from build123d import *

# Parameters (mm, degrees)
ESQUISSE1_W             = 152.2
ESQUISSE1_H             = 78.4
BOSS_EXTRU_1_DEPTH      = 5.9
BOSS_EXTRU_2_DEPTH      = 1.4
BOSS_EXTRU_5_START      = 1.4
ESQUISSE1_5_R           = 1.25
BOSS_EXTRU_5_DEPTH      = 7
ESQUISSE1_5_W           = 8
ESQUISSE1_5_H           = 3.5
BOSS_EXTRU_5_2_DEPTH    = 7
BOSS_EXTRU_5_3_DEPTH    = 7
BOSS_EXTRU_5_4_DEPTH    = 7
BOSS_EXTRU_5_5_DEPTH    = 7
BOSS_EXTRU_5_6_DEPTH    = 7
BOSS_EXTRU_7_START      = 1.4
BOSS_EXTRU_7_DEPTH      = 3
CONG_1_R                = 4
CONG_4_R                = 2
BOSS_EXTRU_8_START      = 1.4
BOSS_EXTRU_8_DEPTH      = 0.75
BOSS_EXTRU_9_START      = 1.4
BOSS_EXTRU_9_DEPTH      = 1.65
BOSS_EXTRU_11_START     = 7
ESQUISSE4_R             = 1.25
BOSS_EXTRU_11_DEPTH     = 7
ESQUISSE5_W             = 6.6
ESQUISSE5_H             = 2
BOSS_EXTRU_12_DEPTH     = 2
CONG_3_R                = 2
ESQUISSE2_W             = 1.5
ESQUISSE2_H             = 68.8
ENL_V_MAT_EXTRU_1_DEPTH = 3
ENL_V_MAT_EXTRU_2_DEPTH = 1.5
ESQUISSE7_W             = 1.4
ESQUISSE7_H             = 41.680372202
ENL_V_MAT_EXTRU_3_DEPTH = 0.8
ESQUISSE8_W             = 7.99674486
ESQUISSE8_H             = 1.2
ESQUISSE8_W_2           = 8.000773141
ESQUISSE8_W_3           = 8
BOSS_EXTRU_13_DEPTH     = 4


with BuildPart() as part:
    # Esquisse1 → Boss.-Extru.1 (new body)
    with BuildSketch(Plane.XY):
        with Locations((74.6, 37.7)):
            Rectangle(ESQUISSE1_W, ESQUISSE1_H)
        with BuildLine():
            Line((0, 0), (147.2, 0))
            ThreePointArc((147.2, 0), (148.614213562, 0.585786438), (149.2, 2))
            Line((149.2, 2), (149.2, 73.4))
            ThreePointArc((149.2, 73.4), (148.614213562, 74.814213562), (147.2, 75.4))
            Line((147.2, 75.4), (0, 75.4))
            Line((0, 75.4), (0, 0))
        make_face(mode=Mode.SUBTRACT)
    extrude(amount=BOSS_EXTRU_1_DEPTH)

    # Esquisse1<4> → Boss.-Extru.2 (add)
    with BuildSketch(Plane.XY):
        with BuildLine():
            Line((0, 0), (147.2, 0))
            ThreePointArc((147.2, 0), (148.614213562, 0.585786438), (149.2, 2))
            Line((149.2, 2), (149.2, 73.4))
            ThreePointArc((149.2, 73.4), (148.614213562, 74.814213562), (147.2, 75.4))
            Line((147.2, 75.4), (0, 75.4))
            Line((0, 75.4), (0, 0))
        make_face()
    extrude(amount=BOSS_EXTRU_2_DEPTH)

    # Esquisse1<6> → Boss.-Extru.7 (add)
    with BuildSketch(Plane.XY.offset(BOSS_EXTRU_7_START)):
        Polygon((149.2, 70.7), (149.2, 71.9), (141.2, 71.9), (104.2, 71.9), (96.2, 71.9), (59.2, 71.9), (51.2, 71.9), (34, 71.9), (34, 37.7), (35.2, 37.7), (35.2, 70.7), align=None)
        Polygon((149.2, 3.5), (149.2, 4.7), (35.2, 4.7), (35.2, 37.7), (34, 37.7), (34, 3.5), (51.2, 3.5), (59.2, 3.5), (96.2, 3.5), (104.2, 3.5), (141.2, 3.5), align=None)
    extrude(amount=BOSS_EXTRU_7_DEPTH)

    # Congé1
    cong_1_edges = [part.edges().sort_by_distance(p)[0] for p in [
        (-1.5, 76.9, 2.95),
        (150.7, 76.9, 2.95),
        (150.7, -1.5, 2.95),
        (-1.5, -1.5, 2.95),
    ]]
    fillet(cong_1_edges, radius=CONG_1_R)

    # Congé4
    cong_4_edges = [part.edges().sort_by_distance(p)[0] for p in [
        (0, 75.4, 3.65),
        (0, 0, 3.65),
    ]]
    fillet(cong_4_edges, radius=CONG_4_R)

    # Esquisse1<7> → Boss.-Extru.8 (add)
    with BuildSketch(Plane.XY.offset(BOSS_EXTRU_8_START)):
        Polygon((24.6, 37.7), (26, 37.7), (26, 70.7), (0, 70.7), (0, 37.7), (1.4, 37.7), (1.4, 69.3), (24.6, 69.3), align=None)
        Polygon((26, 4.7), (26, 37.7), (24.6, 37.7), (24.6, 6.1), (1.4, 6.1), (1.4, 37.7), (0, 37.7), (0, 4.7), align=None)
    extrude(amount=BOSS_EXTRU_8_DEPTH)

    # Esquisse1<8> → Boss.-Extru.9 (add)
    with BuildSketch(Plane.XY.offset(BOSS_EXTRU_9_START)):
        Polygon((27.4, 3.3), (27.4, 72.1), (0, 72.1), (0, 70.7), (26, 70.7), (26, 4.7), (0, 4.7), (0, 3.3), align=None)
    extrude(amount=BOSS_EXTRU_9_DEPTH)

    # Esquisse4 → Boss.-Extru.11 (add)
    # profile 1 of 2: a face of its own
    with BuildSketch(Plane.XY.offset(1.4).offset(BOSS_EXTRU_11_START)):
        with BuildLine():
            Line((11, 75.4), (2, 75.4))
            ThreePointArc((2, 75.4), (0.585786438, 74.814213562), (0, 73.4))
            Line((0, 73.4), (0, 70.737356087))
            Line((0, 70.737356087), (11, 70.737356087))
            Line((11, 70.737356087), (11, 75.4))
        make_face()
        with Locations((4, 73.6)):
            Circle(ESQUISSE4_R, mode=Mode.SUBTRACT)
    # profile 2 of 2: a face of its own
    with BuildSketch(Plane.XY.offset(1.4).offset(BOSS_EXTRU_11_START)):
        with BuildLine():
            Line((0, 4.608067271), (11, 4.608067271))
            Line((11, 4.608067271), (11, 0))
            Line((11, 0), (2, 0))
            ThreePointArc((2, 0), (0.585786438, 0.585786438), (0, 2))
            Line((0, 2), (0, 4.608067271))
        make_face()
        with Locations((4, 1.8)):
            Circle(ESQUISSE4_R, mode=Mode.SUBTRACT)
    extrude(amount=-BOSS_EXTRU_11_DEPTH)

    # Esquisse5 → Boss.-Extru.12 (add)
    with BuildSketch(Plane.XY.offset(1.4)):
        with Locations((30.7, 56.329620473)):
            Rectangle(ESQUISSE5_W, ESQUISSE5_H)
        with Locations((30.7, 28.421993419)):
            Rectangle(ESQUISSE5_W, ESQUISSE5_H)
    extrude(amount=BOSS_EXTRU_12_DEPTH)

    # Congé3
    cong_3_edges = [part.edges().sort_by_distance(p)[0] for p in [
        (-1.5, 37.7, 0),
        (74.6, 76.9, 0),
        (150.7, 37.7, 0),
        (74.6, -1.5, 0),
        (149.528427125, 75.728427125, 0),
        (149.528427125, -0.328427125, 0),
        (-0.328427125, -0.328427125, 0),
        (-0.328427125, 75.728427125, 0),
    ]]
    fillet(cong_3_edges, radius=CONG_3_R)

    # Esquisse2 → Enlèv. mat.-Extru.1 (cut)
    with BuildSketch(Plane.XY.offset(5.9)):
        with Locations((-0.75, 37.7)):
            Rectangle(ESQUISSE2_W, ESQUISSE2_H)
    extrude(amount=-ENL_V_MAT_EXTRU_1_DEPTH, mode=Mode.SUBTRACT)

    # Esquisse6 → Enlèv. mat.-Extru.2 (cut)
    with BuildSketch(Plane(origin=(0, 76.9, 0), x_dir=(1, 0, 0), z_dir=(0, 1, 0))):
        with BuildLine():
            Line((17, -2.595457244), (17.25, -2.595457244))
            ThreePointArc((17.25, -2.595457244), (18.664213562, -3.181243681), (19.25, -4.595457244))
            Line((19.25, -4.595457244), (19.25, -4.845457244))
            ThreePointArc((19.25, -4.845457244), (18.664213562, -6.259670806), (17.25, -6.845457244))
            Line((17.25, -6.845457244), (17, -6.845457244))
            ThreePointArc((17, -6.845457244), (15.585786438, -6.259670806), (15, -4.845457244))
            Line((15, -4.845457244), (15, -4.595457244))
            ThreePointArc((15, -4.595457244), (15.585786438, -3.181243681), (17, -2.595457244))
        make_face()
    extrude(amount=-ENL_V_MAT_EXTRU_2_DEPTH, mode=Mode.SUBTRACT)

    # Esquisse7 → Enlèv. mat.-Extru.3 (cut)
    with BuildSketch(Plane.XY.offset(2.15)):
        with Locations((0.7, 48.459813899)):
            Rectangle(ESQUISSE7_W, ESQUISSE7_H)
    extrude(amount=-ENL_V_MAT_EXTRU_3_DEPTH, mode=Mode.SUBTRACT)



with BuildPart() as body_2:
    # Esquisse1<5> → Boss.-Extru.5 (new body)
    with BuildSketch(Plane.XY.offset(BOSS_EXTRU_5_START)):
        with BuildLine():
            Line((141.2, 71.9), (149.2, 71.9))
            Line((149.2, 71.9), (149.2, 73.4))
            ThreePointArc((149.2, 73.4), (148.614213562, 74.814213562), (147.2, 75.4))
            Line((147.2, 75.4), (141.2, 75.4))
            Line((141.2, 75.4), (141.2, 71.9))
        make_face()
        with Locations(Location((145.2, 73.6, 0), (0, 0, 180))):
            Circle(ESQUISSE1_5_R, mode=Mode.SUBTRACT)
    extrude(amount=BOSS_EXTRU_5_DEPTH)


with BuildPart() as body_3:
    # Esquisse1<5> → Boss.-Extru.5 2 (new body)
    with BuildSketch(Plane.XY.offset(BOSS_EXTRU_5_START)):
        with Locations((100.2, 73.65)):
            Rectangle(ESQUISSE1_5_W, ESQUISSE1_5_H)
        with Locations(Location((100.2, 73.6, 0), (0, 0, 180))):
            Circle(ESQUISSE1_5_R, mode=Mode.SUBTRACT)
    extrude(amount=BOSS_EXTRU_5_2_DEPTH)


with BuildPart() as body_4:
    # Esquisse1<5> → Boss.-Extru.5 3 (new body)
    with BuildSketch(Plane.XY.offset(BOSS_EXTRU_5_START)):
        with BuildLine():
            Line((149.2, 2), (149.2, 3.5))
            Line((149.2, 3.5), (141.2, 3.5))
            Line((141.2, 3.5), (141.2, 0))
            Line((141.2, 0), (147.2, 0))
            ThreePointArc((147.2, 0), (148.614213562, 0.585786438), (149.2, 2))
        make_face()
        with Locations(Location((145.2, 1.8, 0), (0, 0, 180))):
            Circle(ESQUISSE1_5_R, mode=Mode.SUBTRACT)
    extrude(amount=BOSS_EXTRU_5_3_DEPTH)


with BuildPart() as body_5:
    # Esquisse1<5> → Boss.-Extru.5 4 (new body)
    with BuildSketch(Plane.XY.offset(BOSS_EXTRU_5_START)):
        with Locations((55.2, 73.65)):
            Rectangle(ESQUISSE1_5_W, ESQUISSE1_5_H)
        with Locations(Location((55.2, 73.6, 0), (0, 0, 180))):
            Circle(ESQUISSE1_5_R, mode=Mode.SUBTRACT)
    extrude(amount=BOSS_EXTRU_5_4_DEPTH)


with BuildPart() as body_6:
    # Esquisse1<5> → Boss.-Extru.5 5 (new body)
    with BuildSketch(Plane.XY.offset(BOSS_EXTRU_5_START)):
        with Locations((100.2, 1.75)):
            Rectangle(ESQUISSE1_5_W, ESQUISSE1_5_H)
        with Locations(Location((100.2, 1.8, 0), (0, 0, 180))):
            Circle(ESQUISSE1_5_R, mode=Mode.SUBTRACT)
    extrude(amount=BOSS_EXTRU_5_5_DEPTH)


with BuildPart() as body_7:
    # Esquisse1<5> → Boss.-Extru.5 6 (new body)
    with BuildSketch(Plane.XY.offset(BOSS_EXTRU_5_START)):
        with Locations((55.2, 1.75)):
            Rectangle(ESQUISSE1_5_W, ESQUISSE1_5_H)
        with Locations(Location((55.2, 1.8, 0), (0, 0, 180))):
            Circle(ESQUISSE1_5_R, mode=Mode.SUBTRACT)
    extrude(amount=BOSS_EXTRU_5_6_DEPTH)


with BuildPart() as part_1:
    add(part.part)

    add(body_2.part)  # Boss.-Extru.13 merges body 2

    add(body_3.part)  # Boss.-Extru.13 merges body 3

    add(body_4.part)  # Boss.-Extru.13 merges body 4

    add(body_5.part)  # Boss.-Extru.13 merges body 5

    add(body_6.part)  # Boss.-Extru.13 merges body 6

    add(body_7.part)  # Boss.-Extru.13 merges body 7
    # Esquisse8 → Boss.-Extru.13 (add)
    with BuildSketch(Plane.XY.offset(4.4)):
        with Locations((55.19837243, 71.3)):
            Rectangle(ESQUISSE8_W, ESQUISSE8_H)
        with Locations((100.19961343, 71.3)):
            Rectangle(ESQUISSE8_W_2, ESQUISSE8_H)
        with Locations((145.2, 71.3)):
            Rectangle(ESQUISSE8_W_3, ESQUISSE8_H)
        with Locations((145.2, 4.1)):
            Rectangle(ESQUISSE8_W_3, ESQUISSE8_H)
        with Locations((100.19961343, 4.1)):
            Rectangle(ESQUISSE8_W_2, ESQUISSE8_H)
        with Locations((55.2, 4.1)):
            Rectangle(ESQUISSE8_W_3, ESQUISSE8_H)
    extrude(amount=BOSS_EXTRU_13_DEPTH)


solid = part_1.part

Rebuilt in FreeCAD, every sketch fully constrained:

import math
import FreeCAD as App
import Part
import Sketcher
from FreeCAD import Vector


def edges_at(feature, points):
    """Names of the edges that pass closest to the given points."""
    edges = feature.Shape.Edges
    near = lambda p: min(range(len(edges)), key=lambda i: edges[i].distToShape(Part.Vertex(*p))[0])
    return sorted({f"Edge{near(p) + 1}" for p in points})


def add_polygon(sketch, points):
    """Adds a closed chain of lines whose ends are joined by coincident constraints."""
    first, n = sketch.GeometryCount, len(points)
    for a, b in zip(points, points[1:] + points[:1]):
        sketch.addGeometry(Part.LineSegment(App.Vector(*a, 0), App.Vector(*b, 0)), False)
    for i in range(n):
        sketch.addConstraint(Sketcher.Constraint("Coincident", first + i, 2, first + (i + 1) % n, 1))

doc = App.newDocument("Part")
body = doc.addObject("PartDesign::Body", "Body")

sketch1 = body.newObject("Sketcher::SketchObject", "Sketch")
sketch1.AttachmentSupport = (doc.getObject("XY_Plane"), [""])
sketch1.MapMode = "FlatFace"
add_polygon(sketch1, [(-1.5, 76.9), (-1.5, -1.5), (150.7, -1.5), (150.7, 76.9)])
sketch1.addGeometry(Part.LineSegment(Vector(147.2, 0, 0), Vector(0, 0, 0)), False)
sketch1.addGeometry(Part.LineSegment(Vector(0, 0, 0), Vector(0, 75.4, 0)), False)
sketch1.addGeometry(Part.LineSegment(Vector(0, 75.4, 0), Vector(147.2, 75.4, 0)), False)
sketch1.addGeometry(Part.ArcOfCircle(Part.Circle(Vector(147.2, 73.4, 0), Vector(0, 0, 1), 2), math.radians(0), math.radians(90)), False)
sketch1.addGeometry(Part.LineSegment(Vector(149.2, 73.4, 0), Vector(149.2, 2, 0)), False)
sketch1.addGeometry(Part.ArcOfCircle(Part.Circle(Vector(147.2, 2, 0), Vector(0, 0, 1), 2), math.radians(-90), math.radians(0)), False)
sketch1.addConstraint([
    Sketcher.Constraint("Coincident", 4, 2, 5, 1),
    Sketcher.Constraint("Coincident", 5, 2, 6, 1),
    Sketcher.Constraint("Tangent", 6, 2, 7, 2),
    Sketcher.Constraint("Tangent", 7, 1, 8, 1),
    Sketcher.Constraint("Tangent", 8, 2, 9, 2),
    Sketcher.Constraint("Tangent", 9, 1, 4, 1),
    Sketcher.Constraint("Vertical", 0),
    Sketcher.Constraint("Horizontal", 1),
    Sketcher.Constraint("Vertical", 2),
    Sketcher.Constraint("Horizontal", 3),
    Sketcher.Constraint("Horizontal", 4),
    Sketcher.Constraint("Vertical", 5),
    Sketcher.Constraint("Horizontal", 6),
    Sketcher.Constraint("Vertical", 8),
    Sketcher.Constraint("Coincident", 4, 2, -1, 1),
    Sketcher.Constraint("Equal", 7, 9),
    Sketcher.Constraint("Radius", 7, 2.0),
    Sketcher.Constraint("DistanceX", 1, 1, 1, 2, 152.2),
    Sketcher.Constraint("DistanceX", 4, 2, 4, 1, 147.2),
    Sketcher.Constraint("DistanceY", 0, 2, 0, 1, 78.4),
    Sketcher.Constraint("DistanceY", 5, 1, 5, 2, 75.4),
    Sketcher.Constraint("DistanceX", 0, 2, -1, 1, 1.5),
    Sketcher.Constraint("DistanceY", 0, 2, -1, 1, 1.5),
])
pad1 = body.newObject("PartDesign::Pad", "Pad")
pad1.Profile = sketch1
pad1.Length = 5.9

sketch2 = body.newObject("Sketcher::SketchObject", "Sketch001")
sketch2.AttachmentSupport = (doc.getObject("XY_Plane"), [""])
sketch2.MapMode = "FlatFace"
sketch2.addGeometry([
    Part.LineSegment(Vector(0, 0, 0), Vector(147.2, 0, 0)),
    Part.ArcOfCircle(Part.Circle(Vector(147.2, 2, 0), Vector(0, 0, 1), 2), math.radians(-90), math.radians(0)),
    Part.LineSegment(Vector(149.2, 2, 0), Vector(149.2, 73.4, 0)),
    Part.ArcOfCircle(Part.Circle(Vector(147.2, 73.4, 0), Vector(0, 0, 1), 2), math.radians(0), math.radians(90)),
    Part.LineSegment(Vector(147.2, 75.4, 0), Vector(0, 75.4, 0)),
    Part.LineSegment(Vector(0, 75.4, 0), Vector(0, 0, 0)),
], False)
sketch2.addConstraint([
    Sketcher.Constraint("Tangent", 0, 2, 1, 1),
    Sketcher.Constraint("Tangent", 1, 2, 2, 1),
    Sketcher.Constraint("Tangent", 2, 2, 3, 1),
    Sketcher.Constraint("Tangent", 3, 2, 4, 1),
    Sketcher.Constraint("Coincident", 4, 2, 5, 1),
    Sketcher.Constraint("Coincident", 5, 2, 0, 1),
    Sketcher.Constraint("Horizontal", 0),
    Sketcher.Constraint("Vertical", 2),
    Sketcher.Constraint("Horizontal", 4),
    Sketcher.Constraint("Vertical", 5),
    Sketcher.Constraint("Coincident", 5, 2, -1, 1),
    Sketcher.Constraint("Equal", 1, 3),
    Sketcher.Constraint("Radius", 1, 2.0),
    Sketcher.Constraint("DistanceX", 0, 1, 0, 2, 147.2),
    Sketcher.Constraint("DistanceY", 2, 1, 2, 2, 71.4),
])
pad2 = body.newObject("PartDesign::Pad", "Pad001")
pad2.Profile = sketch2
pad2.Length = 1.4

sketch3 = body.newObject("Sketcher::SketchObject", "Sketch002")
sketch3.AttachmentSupport = (doc.getObject("XY_Plane"), [""])
sketch3.MapMode = "FlatFace"
sketch3.AttachmentOffset = App.Placement(Vector(0, 0, 1.4), App.Rotation())
add_polygon(sketch3, [(149.2, 70.7), (149.2, 71.9), (34, 71.9), (34, 3.5), (149.2, 3.5), (149.2, 4.7), (35.2, 4.7), (35.2, 70.7)])
sketch3.addConstraint([
    Sketcher.Constraint("Vertical", 0),
    Sketcher.Constraint("Horizontal", 1),
    Sketcher.Constraint("Vertical", 2),
    Sketcher.Constraint("Horizontal", 3),
    Sketcher.Constraint("Vertical", 4),
    Sketcher.Constraint("Horizontal", 5),
    Sketcher.Constraint("Vertical", 6),
    Sketcher.Constraint("Horizontal", 7),
    Sketcher.Constraint("Vertical", 0, 2, 3, 2),
    Sketcher.Constraint("Equal", 0, 4),
    Sketcher.Constraint("DistanceX", 5, 2, 5, 1, 114.0),
    Sketcher.Constraint("DistanceY", 6, 1, 6, 2, 66.0),
    Sketcher.Constraint("DistanceX", 1, 2, 1, 1, 115.2),
    Sketcher.Constraint("DistanceY", 0, 1, 0, 2, 1.2),
    Sketcher.Constraint("DistanceX", -1, 1, 1, 2, 34.0),
    Sketcher.Constraint("DistanceY", -1, 1, 0, 2, 71.9),
])
pad3 = body.newObject("PartDesign::Pad", "Pad002")
pad3.Profile = sketch3
pad3.Length = 3
doc.recompute()

fillet = body.newObject("PartDesign::Fillet", "Fillet")
fillet.Base = (pad3, edges_at(pad3, [
    (-1.5, 76.9, 2.95),
    (150.7, 76.9, 2.95),
    (150.7, -1.5, 2.95),
    (-1.5, -1.5, 2.95),
]))
fillet.Radius = 4
doc.recompute()

fillet2 = body.newObject("PartDesign::Fillet", "Fillet001")
fillet2.Base = (fillet, edges_at(fillet, [(0, 75.4, 3.65), (0, 0, 3.65)]))
fillet2.Radius = 2

sketch4 = body.newObject("Sketcher::SketchObject", "Sketch003")
sketch4.AttachmentSupport = (doc.getObject("XY_Plane"), [""])
sketch4.MapMode = "FlatFace"
sketch4.AttachmentOffset = App.Placement(Vector(0, 0, 1.4), App.Rotation())
add_polygon(sketch4, [(26, 70.7), (0, 70.7), (0, 4.7), (26, 4.7)])
add_polygon(sketch4, [(1.4, 69.3), (24.6, 69.3), (24.6, 6.1), (1.4, 6.1)])
sketch4.addConstraint([
    Sketcher.Constraint("Horizontal", 0),
    Sketcher.Constraint("Vertical", 1),
    Sketcher.Constraint("Horizontal", 2),
    Sketcher.Constraint("Vertical", 3),
    Sketcher.Constraint("Horizontal", 4),
    Sketcher.Constraint("Vertical", 5),
    Sketcher.Constraint("Horizontal", 6),
    Sketcher.Constraint("Vertical", 7),
    Sketcher.Constraint("PointOnObject", 0, 2, -2),
    Sketcher.Constraint("DistanceX", 0, 2, 0, 1, 26.0),
    Sketcher.Constraint("DistanceY", 1, 2, 1, 1, 66.0),
    Sketcher.Constraint("DistanceX", 4, 1, 4, 2, 23.2),
    Sketcher.Constraint("DistanceY", 5, 2, 5, 1, 63.2),
    Sketcher.Constraint("DistanceY", -1, 1, 0, 2, 70.7),
    Sketcher.Constraint("DistanceX", -1, 1, 4, 2, 24.6),
    Sketcher.Constraint("DistanceY", -1, 1, 4, 2, 69.3),
])
pad4 = body.newObject("PartDesign::Pad", "Pad003")
pad4.Profile = sketch4
pad4.Length = 0.75

sketch5 = body.newObject("Sketcher::SketchObject", "Sketch004")
sketch5.AttachmentSupport = (doc.getObject("XY_Plane"), [""])
sketch5.MapMode = "FlatFace"
sketch5.AttachmentOffset = App.Placement(Vector(0, 0, 1.4), App.Rotation())
add_polygon(sketch5, [(27.4, 3.3), (27.4, 72.1), (0, 72.1), (0, 70.7), (26, 70.7), (26, 4.7), (0, 4.7), (0, 3.3)])
sketch5.addConstraint([
    Sketcher.Constraint("Vertical", 0),
    Sketcher.Constraint("Horizontal", 1),
    Sketcher.Constraint("Vertical", 2),
    Sketcher.Constraint("Horizontal", 3),
    Sketcher.Constraint("Vertical", 4),
    Sketcher.Constraint("Horizontal", 5),
    Sketcher.Constraint("Vertical", 6),
    Sketcher.Constraint("Horizontal", 7),
    Sketcher.Constraint("PointOnObject", 1, 2, -2),
    Sketcher.Constraint("PointOnObject", 5, 2, -2),
    Sketcher.Constraint("Equal", 2, 6),
    Sketcher.Constraint("DistanceX", 3, 1, 3, 2, 26.0),
    Sketcher.Constraint("DistanceY", 4, 2, 4, 1, 66.0),
    Sketcher.Constraint("DistanceX", 1, 2, 1, 1, 27.4),
    Sketcher.Constraint("DistanceY", 0, 1, 0, 2, 68.8),
    Sketcher.Constraint("DistanceY", -1, 1, 0, 2, 72.1),
])
pad5 = body.newObject("PartDesign::Pad", "Pad004")
pad5.Profile = sketch5
pad5.Length = 1.65

sketch6 = body.newObject("Sketcher::SketchObject", "Sketch005")
sketch6.AttachmentSupport = (doc.getObject("XY_Plane"), [""])
sketch6.MapMode = "FlatFace"
sketch6.AttachmentOffset = App.Placement(Vector(0, 0, 8.4), App.Rotation())
sketch6.addGeometry([
    Part.LineSegment(Vector(11, 75.4, 0), Vector(2, 75.4, 0)),
    Part.ArcOfCircle(Part.Circle(Vector(2, 73.4, 0), Vector(0, 0, 1), 2), math.radians(90), math.radians(180)),
    Part.LineSegment(Vector(0, 73.4, 0), Vector(0, 70.737356, 0)),
    Part.LineSegment(Vector(0, 70.737356, 0), Vector(11, 70.737356, 0)),
    Part.LineSegment(Vector(11, 70.737356, 0), Vector(11, 75.4, 0)),
    Part.Circle(Vector(4, 73.6, 0), Vector(0, 0, 1), 1.25),
    Part.LineSegment(Vector(11, 4.608067, 0), Vector(0, 4.608067, 0)),
    Part.LineSegment(Vector(0, 4.608067, 0), Vector(0, 2, 0)),
    Part.ArcOfCircle(Part.Circle(Vector(2, 2, 0), Vector(0, 0, 1), 2), math.radians(-180), math.radians(-90)),
    Part.LineSegment(Vector(2, 0, 0), Vector(11, 0, 0)),
    Part.LineSegment(Vector(11, 0, 0), Vector(11, 4.608067, 0)),
    Part.Circle(Vector(4, 1.8, 0), Vector(0, 0, 1), 1.25),
], False)
sketch6.addConstraint([
    Sketcher.Constraint("Tangent", 0, 2, 1, 1),
    Sketcher.Constraint("Tangent", 1, 2, 2, 1),
    Sketcher.Constraint("Coincident", 2, 2, 3, 1),
    Sketcher.Constraint("Coincident", 3, 2, 4, 1),
    Sketcher.Constraint("Coincident", 4, 2, 0, 1),
    Sketcher.Constraint("Coincident", 6, 2, 7, 1),
    Sketcher.Constraint("Tangent", 7, 2, 8, 1),
    Sketcher.Constraint("Tangent", 8, 2, 9, 1),
    Sketcher.Constraint("Coincident", 9, 2, 10, 1),
    Sketcher.Constraint("Coincident", 10, 2, 6, 1),
    Sketcher.Constraint("Horizontal", 0),
    Sketcher.Constraint("Vertical", 2),
    Sketcher.Constraint("Horizontal", 3),
    Sketcher.Constraint("Vertical", 4),
    Sketcher.Constraint("Horizontal", 6),
    Sketcher.Constraint("Vertical", 7),
    Sketcher.Constraint("Horizontal", 9),
    Sketcher.Constraint("Vertical", 10),
    Sketcher.Constraint("Equal", 1, 8),
    Sketcher.Constraint("Equal", 5, 11),
    Sketcher.Constraint("PointOnObject", 1, 2, -2),
    Sketcher.Constraint("PointOnObject", 6, 2, -2),
    Sketcher.Constraint("PointOnObject", 8, 2, -1),
    Sketcher.Constraint("Vertical", 5, 3, 11, 3),
    Sketcher.Constraint("Vertical", 4, 2, 9, 2),
    Sketcher.Constraint("Radius", 1, 2.0),
    Sketcher.Constraint("Diameter", 5, 2.5),
    Sketcher.Constraint("DistanceX", 0, 2, 0, 1, 9.0),
    Sketcher.Constraint("DistanceX", -1, 1, 5, 3, 4.0),
    Sketcher.Constraint("DistanceY", -1, 1, 1, 3, 73.4),
    Sketcher.Constraint("DistanceY", -1, 1, 5, 3, 73.6),
    Sketcher.Constraint("DistanceY", -1, 1, 11, 3, 1.8),
    Sketcher.Constraint("DistanceY", 2, 2, 2, 1, 2.662644),
    Sketcher.Constraint("DistanceY", 7, 2, 7, 1, 2.608067),
])
pad6 = body.newObject("PartDesign::Pad", "Pad005")
pad6.Profile = sketch6
pad6.Length = 7
pad6.Reversed = True

sketch7 = body.newObject("Sketcher::SketchObject", "Sketch006")
sketch7.AttachmentSupport = (doc.getObject("XY_Plane"), [""])
sketch7.MapMode = "FlatFace"
sketch7.AttachmentOffset = App.Placement(Vector(0, 0, 1.4), App.Rotation())
add_polygon(sketch7, [(27.4, 57.32962), (27.4, 55.32962), (34, 55.32962), (34, 57.32962)])
add_polygon(sketch7, [(27.4, 29.421993), (27.4, 27.421993), (34, 27.421993), (34, 29.421993)])
sketch7.addConstraint([
    Sketcher.Constraint("Vertical", 0),
    Sketcher.Constraint("Horizontal", 1),
    Sketcher.Constraint("Vertical", 2),
    Sketcher.Constraint("Horizontal", 3),
    Sketcher.Constraint("Vertical", 4),
    Sketcher.Constraint("Horizontal", 5),
    Sketcher.Constraint("Vertical", 6),
    Sketcher.Constraint("Horizontal", 7),
    Sketcher.Constraint("Vertical", 3, 2, 4, 2),
    Sketcher.Constraint("Vertical", 2, 2, 5, 2),
    Sketcher.Constraint("Equal", 2, 4),
    Sketcher.Constraint("DistanceY", 0, 2, 0, 1, 2.0),
    Sketcher.Constraint("DistanceX", 1, 1, 1, 2, 6.6),
    Sketcher.Constraint("DistanceX", -1, 1, 1, 2, 34.0),
    Sketcher.Constraint("DistanceY", -1, 1, 0, 2, 55.32962),
    Sketcher.Constraint("DistanceY", -1, 1, 4, 2, 27.421993),
])
pad7 = body.newObject("PartDesign::Pad", "Pad006")
pad7.Profile = sketch7
pad7.Length = 2
doc.recompute()

fillet3 = body.newObject("PartDesign::Fillet", "Fillet002")
fillet3.Base = (pad7, edges_at(pad7, [
    (-1.5, 37.7, 0),
    (74.6, 76.9, 0),
    (150.7, 37.7, 0),
    (74.6, -1.5, 0),
    (149.528, 75.728, 0),
    (149.528, -0.328, 0),
    (-0.328, -0.328, 0),
    (-0.328, 75.728, 0),
]))
fillet3.Radius = 2

sketch8 = body.newObject("Sketcher::SketchObject", "Sketch007")
sketch8.AttachmentSupport = (doc.getObject("XY_Plane"), [""])
sketch8.MapMode = "FlatFace"
sketch8.AttachmentOffset = App.Placement(Vector(0, 0, 5.9), App.Rotation())
add_polygon(sketch8, [(-1.5, 72.1), (-1.5, 3.3), (0, 3.3), (0, 72.1)])
sketch8.addConstraint([
    Sketcher.Constraint("Vertical", 0),
    Sketcher.Constraint("Horizontal", 1),
    Sketcher.Constraint("Vertical", 2),
    Sketcher.Constraint("Horizontal", 3),
    Sketcher.Constraint("PointOnObject", 1, 2, -2),
    Sketcher.Constraint("DistanceX", 1, 1, 1, 2, 1.5),
    Sketcher.Constraint("DistanceY", 0, 2, 0, 1, 68.8),
    Sketcher.Constraint("DistanceY", -1, 1, 0, 2, 3.3),
])
pocket1 = body.newObject("PartDesign::Pocket", "Pocket")
pocket1.Profile = sketch8
pocket1.Length = 3

sketch9 = body.newObject("Sketcher::SketchObject", "Sketch008")
sketch9.AttachmentSupport = (doc.getObject("XZ_Plane"), [""])
sketch9.MapMode = "FlatFace"
sketch9.AttachmentOffset = App.Placement(Vector(0, 0, -76.9), App.Rotation())
sketch9.addGeometry([
    Part.LineSegment(Vector(17.25, 2.595457, 0), Vector(17, 2.595457, 0)),
    Part.ArcOfCircle(Part.Circle(Vector(17, 4.595457, 0), Vector(0, 0, 1), 2), math.radians(180), math.radians(270)),
    Part.LineSegment(Vector(15, 4.595457, 0), Vector(15, 4.845457, 0)),
    Part.ArcOfCircle(Part.Circle(Vector(17, 4.845457, 0), Vector(0, 0, 1), 2), math.radians(90), math.radians(180)),
    Part.LineSegment(Vector(17, 6.845457, 0), Vector(17.25, 6.845457, 0)),
    Part.ArcOfCircle(Part.Circle(Vector(17.25, 4.845457, 0), Vector(0, 0, 1), 2), math.radians(0), math.radians(90)),
    Part.LineSegment(Vector(19.25, 4.845457, 0), Vector(19.25, 4.595457, 0)),
    Part.ArcOfCircle(Part.Circle(Vector(17.25, 4.595457, 0), Vector(0, 0, 1), 2), math.radians(-90), math.radians(0)),
], False)
sketch9.addConstraint([
    Sketcher.Constraint("Tangent", 0, 2, 1, 2),
    Sketcher.Constraint("Tangent", 1, 1, 2, 1),
    Sketcher.Constraint("Tangent", 2, 2, 3, 2),
    Sketcher.Constraint("Tangent", 3, 1, 4, 1),
    Sketcher.Constraint("Tangent", 4, 2, 5, 2),
    Sketcher.Constraint("Tangent", 5, 1, 6, 1),
    Sketcher.Constraint("Tangent", 6, 2, 7, 2),
    Sketcher.Constraint("Tangent", 7, 1, 0, 1),
    Sketcher.Constraint("Horizontal", 0),
    Sketcher.Constraint("Vertical", 2),
    Sketcher.Constraint("Horizontal", 4),
    Sketcher.Constraint("Vertical", 6),
    Sketcher.Constraint("Equal", 1, 3),
    Sketcher.Constraint("Equal", 3, 5),
    Sketcher.Constraint("Equal", 5, 7),
    Sketcher.Constraint("Equal", 4, 2),
    Sketcher.Constraint("Radius", 1, 2.0),
    Sketcher.Constraint("DistanceX", -1, 1, 1, 3, 17.0),
    Sketcher.Constraint("DistanceX", 0, 2, 0, 1, 0.25),
    Sketcher.Constraint("DistanceY", -1, 1, 1, 3, 4.595457),
])
pocket2 = body.newObject("PartDesign::Pocket", "Pocket001")
pocket2.Profile = sketch9
pocket2.Length = 1.5
pocket2.Reversed = True

sketch10 = body.newObject("Sketcher::SketchObject", "Sketch009")
sketch10.AttachmentSupport = (doc.getObject("XY_Plane"), [""])
sketch10.MapMode = "FlatFace"
sketch10.AttachmentOffset = App.Placement(Vector(0, 0, 2.15), App.Rotation())
add_polygon(sketch10, [(0, 69.3), (0, 27.619628), (1.4, 27.619628), (1.4, 69.3)])
sketch10.addConstraint([
    Sketcher.Constraint("Vertical", 0),
    Sketcher.Constraint("Horizontal", 1),
    Sketcher.Constraint("Vertical", 2),
    Sketcher.Constraint("Horizontal", 3),
    Sketcher.Constraint("PointOnObject", 0, 2, -2),
    Sketcher.Constraint("DistanceX", 1, 1, 1, 2, 1.4),
    Sketcher.Constraint("DistanceY", -1, 1, 2, 2, 69.3),
    Sketcher.Constraint("DistanceY", 0, 2, 0, 1, 41.680372),
])
pocket3 = body.newObject("PartDesign::Pocket", "Pocket002")
pocket3.Profile = sketch10
pocket3.Length = 0.8
body2 = doc.addObject("PartDesign::Body", "Body001")

sketch11 = body2.newObject("Sketcher::SketchObject", "Sketch010")
sketch11.AttachmentSupport = (doc.getObject("XY_Plane001"), [""])
sketch11.MapMode = "FlatFace"
sketch11.AttachmentOffset = App.Placement(Vector(0, 0, 1.4), App.Rotation())
sketch11.addGeometry([
    Part.LineSegment(Vector(141.2, 71.9, 0), Vector(149.2, 71.9, 0)),
    Part.LineSegment(Vector(149.2, 71.9, 0), Vector(149.2, 73.4, 0)),
    Part.ArcOfCircle(Part.Circle(Vector(147.2, 73.4, 0), Vector(0, 0, 1), 2), math.radians(0), math.radians(90)),
    Part.LineSegment(Vector(147.2, 75.4, 0), Vector(141.2, 75.4, 0)),
    Part.LineSegment(Vector(141.2, 75.4, 0), Vector(141.2, 71.9, 0)),
    Part.Circle(Vector(145.2, 73.6, 0), Vector(0, 0, 1), 1.25),
], False)
sketch11.addConstraint([
    Sketcher.Constraint("Coincident", 0, 2, 1, 1),
    Sketcher.Constraint("Tangent", 1, 2, 2, 1),
    Sketcher.Constraint("Tangent", 2, 2, 3, 1),
    Sketcher.Constraint("Coincident", 3, 2, 4, 1),
    Sketcher.Constraint("Coincident", 4, 2, 0, 1),
    Sketcher.Constraint("Horizontal", 0),
    Sketcher.Constraint("Vertical", 1),
    Sketcher.Constraint("Horizontal", 3),
    Sketcher.Constraint("Vertical", 4),
    Sketcher.Constraint("Radius", 2, 2.0),
    Sketcher.Constraint("Diameter", 5, 2.5),
    Sketcher.Constraint("DistanceX", 0, 1, 0, 2, 8.0),
    Sketcher.Constraint("DistanceY", 1, 1, 1, 2, 1.5),
    Sketcher.Constraint("DistanceX", 5, 3, 2, 3, 2.0),
    Sketcher.Constraint("DistanceX", -1, 1, 2, 3, 147.2),
    Sketcher.Constraint("DistanceY", -1, 1, 2, 3, 73.4),
    Sketcher.Constraint("DistanceY", -1, 1, 5, 3, 73.6),
])
pad8 = body2.newObject("PartDesign::Pad", "Pad007")
pad8.Profile = sketch11
pad8.Length = 7
body3 = doc.addObject("PartDesign::Body", "Body002")

sketch12 = body3.newObject("Sketcher::SketchObject", "Sketch011")
sketch12.AttachmentSupport = (doc.getObject("XY_Plane002"), [""])
sketch12.MapMode = "FlatFace"
sketch12.AttachmentOffset = App.Placement(Vector(0, 0, 1.4), App.Rotation())
add_polygon(sketch12, [(96.2, 75.4), (96.2, 71.9), (104.2, 71.9), (104.2, 75.4)])
sketch12.addGeometry(Part.Circle(Vector(100.2, 73.6, 0), Vector(0, 0, 1), 1.25), False)
sketch12.addConstraint([
    Sketcher.Constraint("Vertical", 0),
    Sketcher.Constraint("Horizontal", 1),
    Sketcher.Constraint("Vertical", 2),
    Sketcher.Constraint("Horizontal", 3),
    Sketcher.Constraint("Diameter", 4, 2.5),
    Sketcher.Constraint("DistanceX", 1, 1, 1, 2, 8.0),
    Sketcher.Constraint("DistanceY", 0, 2, 0, 1, 3.5),
    Sketcher.Constraint("DistanceX", 0, 2, 4, 3, 4.0),
    Sketcher.Constraint("DistanceX", -1, 1, 4, 3, 100.2),
    Sketcher.Constraint("DistanceY", -1, 1, 4, 3, 73.6),
    Sketcher.Constraint("DistanceY", -1, 1, 0, 2, 71.9),
])
pad9 = body3.newObject("PartDesign::Pad", "Pad008")
pad9.Profile = sketch12
pad9.Length = 7
body4 = doc.addObject("PartDesign::Body", "Body003")

sketch13 = body4.newObject("Sketcher::SketchObject", "Sketch012")
sketch13.AttachmentSupport = (doc.getObject("XY_Plane003"), [""])
sketch13.MapMode = "FlatFace"
sketch13.AttachmentOffset = App.Placement(Vector(0, 0, 1.4), App.Rotation())
sketch13.addGeometry([
    Part.LineSegment(Vector(149.2, 2, 0), Vector(149.2, 3.5, 0)),
    Part.LineSegment(Vector(149.2, 3.5, 0), Vector(141.2, 3.5, 0)),
    Part.LineSegment(Vector(141.2, 3.5, 0), Vector(141.2, 0, 0)),
    Part.LineSegment(Vector(141.2, 0, 0), Vector(147.2, 0, 0)),
    Part.ArcOfCircle(Part.Circle(Vector(147.2, 2, 0), Vector(0, 0, 1), 2), math.radians(-90), math.radians(0)),
    Part.Circle(Vector(145.2, 1.8, 0), Vector(0, 0, 1), 1.25),
], False)
sketch13.addConstraint([
    Sketcher.Constraint("Coincident", 0, 2, 1, 1),
    Sketcher.Constraint("Coincident", 1, 2, 2, 1),
    Sketcher.Constraint("Coincident", 2, 2, 3, 1),
    Sketcher.Constraint("Tangent", 3, 2, 4, 1),
    Sketcher.Constraint("Tangent", 4, 2, 0, 1),
    Sketcher.Constraint("Vertical", 0),
    Sketcher.Constraint("Horizontal", 1),
    Sketcher.Constraint("Vertical", 2),
    Sketcher.Constraint("Horizontal", 3),
    Sketcher.Constraint("PointOnObject", 2, 2, -1),
    Sketcher.Constraint("Radius", 4, 2.0),
    Sketcher.Constraint("Diameter", 5, 2.5),
    Sketcher.Constraint("DistanceX", 1, 2, 1, 1, 8.0),
    Sketcher.Constraint("DistanceY", 0, 1, 0, 2, 1.5),
    Sketcher.Constraint("DistanceX", 5, 3, 4, 3, 2.0),
    Sketcher.Constraint("DistanceX", -1, 1, 4, 3, 147.2),
    Sketcher.Constraint("DistanceY", -1, 1, 5, 3, 1.8),
])
pad10 = body4.newObject("PartDesign::Pad", "Pad009")
pad10.Profile = sketch13
pad10.Length = 7
body5 = doc.addObject("PartDesign::Body", "Body004")

sketch14 = body5.newObject("Sketcher::SketchObject", "Sketch013")
sketch14.AttachmentSupport = (doc.getObject("XY_Plane004"), [""])
sketch14.MapMode = "FlatFace"
sketch14.AttachmentOffset = App.Placement(Vector(0, 0, 1.4), App.Rotation())
add_polygon(sketch14, [(51.2, 75.4), (51.2, 71.9), (59.2, 71.9), (59.2, 75.4)])
sketch14.addGeometry(Part.Circle(Vector(55.2, 73.6, 0), Vector(0, 0, 1), 1.25), False)
sketch14.addConstraint([
    Sketcher.Constraint("Vertical", 0),
    Sketcher.Constraint("Horizontal", 1),
    Sketcher.Constraint("Vertical", 2),
    Sketcher.Constraint("Horizontal", 3),
    Sketcher.Constraint("Diameter", 4, 2.5),
    Sketcher.Constraint("DistanceX", 1, 1, 1, 2, 8.0),
    Sketcher.Constraint("DistanceY", 0, 2, 0, 1, 3.5),
    Sketcher.Constraint("DistanceX", 0, 2, 4, 3, 4.0),
    Sketcher.Constraint("DistanceX", -1, 1, 4, 3, 55.2),
    Sketcher.Constraint("DistanceY", -1, 1, 4, 3, 73.6),
    Sketcher.Constraint("DistanceY", -1, 1, 0, 2, 71.9),
])
pad11 = body5.newObject("PartDesign::Pad", "Pad010")
pad11.Profile = sketch14
pad11.Length = 7
body6 = doc.addObject("PartDesign::Body", "Body005")

sketch15 = body6.newObject("Sketcher::SketchObject", "Sketch014")
sketch15.AttachmentSupport = (doc.getObject("XY_Plane005"), [""])
sketch15.MapMode = "FlatFace"
sketch15.AttachmentOffset = App.Placement(Vector(0, 0, 1.4), App.Rotation())
add_polygon(sketch15, [(96.2, 3.5), (96.2, 0), (104.2, 0), (104.2, 3.5)])
sketch15.addGeometry(Part.Circle(Vector(100.2, 1.8, 0), Vector(0, 0, 1), 1.25), False)
sketch15.addConstraint([
    Sketcher.Constraint("Vertical", 0),
    Sketcher.Constraint("Horizontal", 1),
    Sketcher.Constraint("Vertical", 2),
    Sketcher.Constraint("Horizontal", 3),
    Sketcher.Constraint("PointOnObject", 0, 2, -1),
    Sketcher.Constraint("Diameter", 4, 2.5),
    Sketcher.Constraint("DistanceX", 1, 1, 1, 2, 8.0),
    Sketcher.Constraint("DistanceY", 0, 2, 0, 1, 3.5),
    Sketcher.Constraint("DistanceX", 0, 2, 4, 3, 4.0),
    Sketcher.Constraint("DistanceX", -1, 1, 4, 3, 100.2),
    Sketcher.Constraint("DistanceY", -1, 1, 4, 3, 1.8),
])
pad12 = body6.newObject("PartDesign::Pad", "Pad011")
pad12.Profile = sketch15
pad12.Length = 7
body7 = doc.addObject("PartDesign::Body", "Body006")

sketch16 = body7.newObject("Sketcher::SketchObject", "Sketch015")
sketch16.AttachmentSupport = (doc.getObject("XY_Plane006"), [""])
sketch16.MapMode = "FlatFace"
sketch16.AttachmentOffset = App.Placement(Vector(0, 0, 1.4), App.Rotation())
add_polygon(sketch16, [(51.2, 3.5), (51.2, 0), (59.2, 0), (59.2, 3.5)])
sketch16.addGeometry(Part.Circle(Vector(55.2, 1.8, 0), Vector(0, 0, 1), 1.25), False)
sketch16.addConstraint([
    Sketcher.Constraint("Vertical", 0),
    Sketcher.Constraint("Horizontal", 1),
    Sketcher.Constraint("Vertical", 2),
    Sketcher.Constraint("Horizontal", 3),
    Sketcher.Constraint("PointOnObject", 0, 2, -1),
    Sketcher.Constraint("Diameter", 4, 2.5),
    Sketcher.Constraint("DistanceX", 1, 1, 1, 2, 8.0),
    Sketcher.Constraint("DistanceY", 0, 2, 0, 1, 3.5),
    Sketcher.Constraint("DistanceX", 0, 2, 4, 3, 4.0),
    Sketcher.Constraint("DistanceX", -1, 1, 4, 3, 55.2),
    Sketcher.Constraint("DistanceY", -1, 1, 4, 3, 1.8),
])
pad13 = body7.newObject("PartDesign::Pad", "Pad012")
pad13.Profile = sketch16
pad13.Length = 7
doc.recompute()

boolean = body.newObject("PartDesign::Boolean", "Boolean")
boolean.Type = "Fuse"
boolean.addObjects([body2])
doc.recompute()

boolean2 = body.newObject("PartDesign::Boolean", "Boolean001")
boolean2.Type = "Fuse"
boolean2.addObjects([body3])
doc.recompute()

boolean3 = body.newObject("PartDesign::Boolean", "Boolean002")
boolean3.Type = "Fuse"
boolean3.addObjects([body4])
doc.recompute()

boolean4 = body.newObject("PartDesign::Boolean", "Boolean003")
boolean4.Type = "Fuse"
boolean4.addObjects([body5])
doc.recompute()

boolean5 = body.newObject("PartDesign::Boolean", "Boolean004")
boolean5.Type = "Fuse"
boolean5.addObjects([body6])
doc.recompute()

boolean6 = body.newObject("PartDesign::Boolean", "Boolean005")
boolean6.Type = "Fuse"
boolean6.addObjects([body7])

sketch17 = body.newObject("Sketcher::SketchObject", "Sketch016")
sketch17.AttachmentSupport = (doc.getObject("XY_Plane"), [""])
sketch17.MapMode = "FlatFace"
sketch17.AttachmentOffset = App.Placement(Vector(0, 0, 4.4), App.Rotation())
add_polygon(sketch17, [(51.2, 71.9), (51.2, 70.7), (59.196745, 70.7), (59.196745, 71.9)])
add_polygon(sketch17, [(96.199227, 71.9), (96.199227, 70.7), (104.2, 70.7), (104.2, 71.9)])
add_polygon(sketch17, [(141.2, 71.9), (141.2, 70.7), (149.2, 70.7), (149.2, 71.9)])
add_polygon(sketch17, [(141.2, 4.7), (141.2, 3.5), (149.2, 3.5), (149.2, 4.7)])
add_polygon(sketch17, [(96.199227, 4.7), (96.199227, 3.5), (104.2, 3.5), (104.2, 4.7)])
add_polygon(sketch17, [(51.2, 4.7), (51.2, 3.5), (59.2, 3.5), (59.2, 4.7)])
sketch17.addConstraint([
    Sketcher.Constraint("Vertical", 0),
    Sketcher.Constraint("Horizontal", 1),
    Sketcher.Constraint("Vertical", 2),
    Sketcher.Constraint("Horizontal", 3),
    Sketcher.Constraint("Vertical", 4),
    Sketcher.Constraint("Horizontal", 5),
    Sketcher.Constraint("Vertical", 6),
    Sketcher.Constraint("Horizontal", 7),
    Sketcher.Constraint("Vertical", 8),
    Sketcher.Constraint("Horizontal", 9),
    Sketcher.Constraint("Vertical", 10),
    Sketcher.Constraint("Horizontal", 11),
    Sketcher.Constraint("Vertical", 12),
    Sketcher.Constraint("Horizontal", 13),
    Sketcher.Constraint("Vertical", 14),
    Sketcher.Constraint("Horizontal", 15),
    Sketcher.Constraint("Vertical", 16),
    Sketcher.Constraint("Horizontal", 17),
    Sketcher.Constraint("Vertical", 18),
    Sketcher.Constraint("Horizontal", 19),
    Sketcher.Constraint("Vertical", 20),
    Sketcher.Constraint("Horizontal", 21),
    Sketcher.Constraint("Vertical", 22),
    Sketcher.Constraint("Horizontal", 23),
    Sketcher.Constraint("Horizontal", 1, 2, 4, 2),
    Sketcher.Constraint("Horizontal", 3, 2, 6, 2),
    Sketcher.Constraint("Horizontal", 5, 2, 8, 2),
    Sketcher.Constraint("Horizontal", 7, 2, 10, 2),
    Sketcher.Constraint("Horizontal", 13, 2, 16, 2),
    Sketcher.Constraint("Horizontal", 15, 2, 18, 2),
    Sketcher.Constraint("Horizontal", 17, 2, 20, 2),
    Sketcher.Constraint("Horizontal", 19, 2, 22, 2),
    Sketcher.Constraint("Vertical", 11, 2, 12, 2),
    Sketcher.Constraint("Vertical", 10, 2, 13, 2),
    Sketcher.Constraint("Vertical", 7, 2, 16, 2),
    Sketcher.Constraint("Vertical", 6, 2, 17, 2),
    Sketcher.Constraint("Vertical", 3, 2, 20, 2),
    Sketcher.Constraint("Equal", 15, 21),
    Sketcher.Constraint("Equal", 10, 12),
    Sketcher.Constraint("DistanceX", 9, 1, 9, 2, 8.0),
    Sketcher.Constraint("DistanceY", 0, 2, 0, 1, 1.2),
    Sketcher.Constraint("DistanceX", 0, 2, 5, 2, 53.0),
    Sketcher.Constraint("DistanceX", 5, 2, 8, 2, 37.0),
    Sketcher.Constraint("DistanceY", 14, 2, 9, 2, 66.0),
    Sketcher.Constraint("DistanceX", -1, 1, 0, 2, 51.2),
    Sketcher.Constraint("DistanceY", -1, 1, 0, 2, 70.7),
    Sketcher.Constraint("DistanceX", 1, 1, 1, 2, 7.996745),
    Sketcher.Constraint("DistanceX", 5, 1, 5, 2, 8.000773),
])
pad14 = body.newObject("PartDesign::Pad", "Pad013")
pad14.Profile = sketch17
pad14.Length = 4

doc.recompute()
